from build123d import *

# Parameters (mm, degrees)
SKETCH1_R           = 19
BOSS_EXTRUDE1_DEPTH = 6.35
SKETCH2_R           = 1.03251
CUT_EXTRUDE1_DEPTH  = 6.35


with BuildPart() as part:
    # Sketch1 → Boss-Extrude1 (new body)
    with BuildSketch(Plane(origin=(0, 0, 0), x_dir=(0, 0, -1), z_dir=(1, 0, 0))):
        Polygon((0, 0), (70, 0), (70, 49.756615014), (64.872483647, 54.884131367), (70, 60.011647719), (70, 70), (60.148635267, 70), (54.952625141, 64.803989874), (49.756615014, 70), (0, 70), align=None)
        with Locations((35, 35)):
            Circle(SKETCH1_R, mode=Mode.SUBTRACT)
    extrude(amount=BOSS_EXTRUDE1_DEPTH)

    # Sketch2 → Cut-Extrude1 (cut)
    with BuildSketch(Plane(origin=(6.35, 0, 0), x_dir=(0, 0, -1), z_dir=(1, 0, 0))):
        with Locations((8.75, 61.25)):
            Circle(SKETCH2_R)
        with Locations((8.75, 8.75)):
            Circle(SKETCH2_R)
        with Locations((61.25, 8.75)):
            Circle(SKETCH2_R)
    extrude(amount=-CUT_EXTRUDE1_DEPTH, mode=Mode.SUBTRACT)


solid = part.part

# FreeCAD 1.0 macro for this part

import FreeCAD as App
import Part
import Sketcher

V = App.Vector


def add_polygon(sketch, points):
    """Adds a closed chain of lines whose ends are joined by coincident constraints."""
    first, n = sketch.GeometryCount, len(points)
    for a, b in zip(points, points[1:] + points[:1]):
        sketch.addGeometry(Part.LineSegment(App.Vector(*a, 0), App.Vector(*b, 0)), False)
    for i in range(n):
        sketch.addConstraint(Sketcher.Constraint("Coincident", first + i, 2, first + (i + 1) % n, 1))

doc = App.newDocument("Part")
body = doc.addObject("PartDesign::Body", "Body")

sketch1 = body.newObject("Sketcher::SketchObject", "Sketch")
sketch1.AttachmentSupport = (doc.getObject("YZ_Plane"), [""])
sketch1.MapMode = "FlatFace"
add_polygon(sketch1, [(0, 0), (0, -70), (50, -70), (55, -65), (60, -70), (70, -70), (70, -60), (65, -55), (70, -50), (70, 0)])
sketch1.addGeometry(Part.Circle(V(35, -35, 0), V(0, 0, 1), 19), False)
sketch1.addConstraint(Sketcher.Constraint("Vertical", 0))
sketch1.addConstraint(Sketcher.Constraint("Horizontal", 1))
sketch1.addConstraint(Sketcher.Constraint("Horizontal", 4))
sketch1.addConstraint(Sketcher.Constraint("Vertical", 5))
sketch1.addConstraint(Sketcher.Constraint("Vertical", 8))
sketch1.addConstraint(Sketcher.Constraint("Horizontal", 9))
sketch1.addConstraint(Sketcher.Constraint("Coincident", 9, 2, -1, 1))
sketch1.addConstraint(Sketcher.Constraint("Perpendicular", 2, 3))
sketch1.addConstraint(Sketcher.Constraint("Parallel", 3, 6))
sketch1.addConstraint(Sketcher.Constraint("Perpendicular", 6, 7))
sketch1.addConstraint(Sketcher.Constraint("Horizontal", 1, 2, 3, 2))
sketch1.addConstraint(Sketcher.Constraint("Vertical", 5, 2, 7, 2))
sketch1.addConstraint(Sketcher.Constraint("Equal", 9, 0))
sketch1.addConstraint(Sketcher.Constraint("Equal", 1, 8))
sketch1.addConstraint(Sketcher.Constraint("Equal", 2, 3))
sketch1.addConstraint(Sketcher.Constraint("Diameter", 10, 38.0))
sketch1.addConstraint(Sketcher.Constraint("DistanceX", 9, 2, 9, 1, 70.0))
sketch1.addConstraint(Sketcher.Constraint("DistanceX", -1, 1, 10, 3, 35.0))
sketch1.addConstraint(Sketcher.Constraint("DistanceY", 10, 3, -1, 1, 35.0))
sketch1.addConstraint(Sketcher.Constraint("DistanceX", 1, 1, 1, 2, 49.756615))
sketch1.addConstraint(Sketcher.Constraint("DistanceX", 4, 1, 4, 2, 9.988352))
sketch1.addConstraint(Sketcher.Constraint("DistanceY", 5, 1, 5, 2, 9.851365))
pad1 = body.newObject("PartDesign::Pad", "Pad")
pad1.Profile = sketch1
pad1.Length = 6.35

sketch2 = body.newObject("Sketcher::SketchObject", "Sketch001")
sketch2.AttachmentSupport = (doc.getObject("YZ_Plane"), [""])
sketch2.MapMode = "FlatFace"
sketch2.AttachmentOffset = App.Placement(V(0, 0, 6.35), App.Rotation())
sketch2.addGeometry(Part.Circle(V(61.2, -8.8, 0), V(0, 0, 1), 1), False)
sketch2.addGeometry(Part.Circle(V(8.8, -8.8, 0), V(0, 0, 1), 1), False)
sketch2.addGeometry(Part.Circle(V(8.8, -61.2, 0), V(0, 0, 1), 1), False)
sketch2.addConstraint(Sketcher.Constraint("Equal", 0, 1))
sketch2.addConstraint(Sketcher.Constraint("Equal", 1, 2))
sketch2.addConstraint(Sketcher.Constraint("Horizontal", 0, 3, 1, 3))
sketch2.addConstraint(Sketcher.Constraint("Vertical", 1, 3, 2, 3))
sketch2.addConstraint(Sketcher.Constraint("DistanceX", 1, 3, 0, 3, 52.5))
sketch2.addConstraint(Sketcher.Constraint("DistanceY", 2, 3, 1, 3, 52.5))
sketch2.addConstraint(Sketcher.Constraint("Diameter", 0, 2.06502))
sketch2.addConstraint(Sketcher.Constraint("DistanceX", -1, 1, 0, 3, 61.25))
sketch2.addConstraint(Sketcher.Constraint("DistanceY", 0, 3, -1, 1, 8.75))
pocket1 = body.newObject("PartDesign::Pocket", "Pocket")
pocket1.Profile = sketch2
pocket1.Length = 6.35

doc.recompute()
